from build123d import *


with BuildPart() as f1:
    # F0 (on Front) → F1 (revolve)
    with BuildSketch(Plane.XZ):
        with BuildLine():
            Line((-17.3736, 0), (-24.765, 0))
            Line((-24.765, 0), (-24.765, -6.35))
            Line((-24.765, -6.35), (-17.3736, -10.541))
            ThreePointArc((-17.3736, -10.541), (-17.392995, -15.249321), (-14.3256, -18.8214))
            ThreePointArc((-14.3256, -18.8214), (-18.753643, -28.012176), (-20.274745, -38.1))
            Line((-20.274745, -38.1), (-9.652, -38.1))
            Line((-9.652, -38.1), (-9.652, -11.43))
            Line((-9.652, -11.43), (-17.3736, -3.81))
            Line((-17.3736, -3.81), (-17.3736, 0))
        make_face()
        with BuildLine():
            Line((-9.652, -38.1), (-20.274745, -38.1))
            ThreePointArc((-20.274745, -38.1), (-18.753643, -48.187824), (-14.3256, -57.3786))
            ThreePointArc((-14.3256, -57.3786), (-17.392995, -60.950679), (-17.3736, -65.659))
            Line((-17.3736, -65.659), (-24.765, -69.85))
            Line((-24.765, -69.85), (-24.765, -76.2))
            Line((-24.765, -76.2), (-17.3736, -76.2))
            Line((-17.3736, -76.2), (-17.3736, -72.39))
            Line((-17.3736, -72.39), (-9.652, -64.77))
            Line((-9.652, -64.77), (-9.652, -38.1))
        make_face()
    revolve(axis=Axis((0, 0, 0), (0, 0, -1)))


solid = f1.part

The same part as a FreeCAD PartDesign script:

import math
import FreeCAD as App
import Part
import Sketcher
from FreeCAD import Vector
Q = App.Units.Quantity

doc = App.newDocument("Part")
body = doc.addObject("PartDesign::Body", "Body")

# Sketch on XZ plane
sketch1 = body.newObject("Sketcher::SketchObject", "Sketch")
sketch1.AttachmentSupport = (doc.getObject("XZ_Plane"), [""])
sketch1.MapMode = "FlatFace"
sketch1.addGeometry([
    Part.LineSegment(Vector(-17.4, 0, 0), Vector(-24.8, 0, 0)),  # 0
    Part.LineSegment(Vector(-24.8, 0, 0), Vector(-24.8, -6.3, 0)),  # 1
    Part.LineSegment(Vector(-24.8, -6.3, 0), Vector(-17.4, -10.5, 0)),  # 2
    Part.ArcOfCircle(Part.Circle(Vector(-11.1, -12.9, 0), Vector(0, 0, 1), 6.7), math.radians(159), math.radians(241)),  # 3
    Part.ArcOfCircle(Part.Circle(Vector(13.9, -38.1, 0), Vector(0, 0, 1), 34.2), math.radians(146), math.radians(180)),  # 4
    Part.ArcOfCircle(Part.Circle(Vector(13.9, -38.1, 0), Vector(0, 0, 1), 34.2), math.radians(-180), math.radians(-146)),  # 5
    Part.ArcOfCircle(Part.Circle(Vector(-11.1, -63.3, 0), Vector(0, 0, 1), 6.7), math.radians(119), math.radians(201)),  # 6
    Part.LineSegment(Vector(-17.4, -65.7, 0), Vector(-24.8, -69.8, 0)),  # 7
    Part.LineSegment(Vector(-24.8, -69.8, 0), Vector(-24.8, -76.2, 0)),  # 8
    Part.LineSegment(Vector(-24.8, -76.2, 0), Vector(-17.4, -76.2, 0)),  # 9
    Part.LineSegment(Vector(-17.4, -76.2, 0), Vector(-17.4, -72.4, 0)),  # 10
    Part.LineSegment(Vector(-17.4, -72.4, 0), Vector(-9.7, -64.8, 0)),  # 11
    Part.LineSegment(Vector(-9.7, -64.8, 0), Vector(-9.7, -11.4, 0)),  # 12
    Part.LineSegment(Vector(-9.7, -11.4, 0), Vector(-17.4, -3.8, 0)),  # 13
    Part.LineSegment(Vector(-17.4, -3.8, 0), Vector(-17.4, 0, 0)),  # 14
], False)
sketch1.addConstraint([
    Sketcher.Constraint("Coincident", 0, 2, 1, 1),
    Sketcher.Constraint("Coincident", 1, 2, 2, 1),
    Sketcher.Constraint("Coincident", 2, 2, 3, 1),
    Sketcher.Constraint("Coincident", 3, 2, 4, 1),
    Sketcher.Constraint("Tangent", 4, 2, 5, 1),
    Sketcher.Constraint("Coincident", 5, 2, 6, 1),
    Sketcher.Constraint("Coincident", 6, 2, 7, 1),
    Sketcher.Constraint("Coincident", 7, 2, 8, 1),
    Sketcher.Constraint("Coincident", 8, 2, 9, 1),
    Sketcher.Constraint("Coincident", 9, 2, 10, 1),
    Sketcher.Constraint("Coincident", 10, 2, 11, 1),
    Sketcher.Constraint("Coincident", 11, 2, 12, 1),
    Sketcher.Constraint("Coincident", 12, 2, 13, 1),
    Sketcher.Constraint("Coincident", 13, 2, 14, 1),
    Sketcher.Constraint("Coincident", 14, 2, 0, 1),
    Sketcher.Constraint("Horizontal", 0),
    Sketcher.Constraint("Vertical", 1),
    Sketcher.Constraint("Vertical", 8),
    Sketcher.Constraint("Horizontal", 9),
    Sketcher.Constraint("Vertical", 10),
    Sketcher.Constraint("Vertical", 12),
    Sketcher.Constraint("Vertical", 14),
    Sketcher.Constraint("Equal", 4, 5),
    Sketcher.Constraint("Equal", 3, 6),
    Sketcher.Constraint("PointOnObject", 0, 2, -1),
    Sketcher.Constraint("Horizontal", 5, 3, 4, 2),
    Sketcher.Constraint("Vertical", 3, 3, 6, 3),
    Sketcher.Constraint("Vertical", 3, 2, 5, 2),
    Sketcher.Constraint("Vertical", 2, 2, 6, 2),
    Sketcher.Constraint("Vertical", 1, 2, 7, 2),
    Sketcher.Constraint("Vertical", 6, 2, 9, 2),
    Sketcher.Constraint("Vertical", 10, 2, 13, 2),
    Sketcher.Constraint("Equal", 1, 8),
    Sketcher.Constraint("Equal", 10, 14),
    Sketcher.Constraint("Equal", 2, 7),
    Sketcher.Constraint("Equal", 11, 13),
    Sketcher.Constraint("DistanceY", 12, 1, 12, 2, Q("2.1 in")),
    Sketcher.Constraint("DistanceY", 8, 2, -1, 1, Q("3 in")),
    Sketcher.Constraint("DistanceY", 1, 2, 1, 1, Q("0.25 in")),
    Sketcher.Constraint("DistanceY", 10, 1, 10, 2, Q("0.15 in")),
    Sketcher.Constraint("DistanceX", 0, 2, 0, 1, Q("0.291 in")),
    Sketcher.Constraint("DistanceX", 11, 2, -1, 1, Q("0.38 in")),
    Sketcher.Constraint("DistanceX", 2, 2, 3, 2, Q("0.12 in")),
    Sketcher.Constraint("DistanceX", 0, 2, -1, 1, Q("0.975 in")),
    Sketcher.Constraint("DistanceY", 2, 2, -1, 1, Q("0.415 in")),
    Sketcher.Constraint("DistanceY", 3, 2, -1, 1, Q("0.741 in")),
    Sketcher.Constraint("Radius", 3, Q("6.739684 mm")),
    Sketcher.Constraint("Radius", 4, Q("34.211368 mm")),
])
revolution = body.newObject("PartDesign::Revolution", "Revolution")
revolution.Profile = sketch1
revolution.ReferenceAxis = (sketch1, ["V_Axis"])
revolution.Angle = 360

doc.recompute()
